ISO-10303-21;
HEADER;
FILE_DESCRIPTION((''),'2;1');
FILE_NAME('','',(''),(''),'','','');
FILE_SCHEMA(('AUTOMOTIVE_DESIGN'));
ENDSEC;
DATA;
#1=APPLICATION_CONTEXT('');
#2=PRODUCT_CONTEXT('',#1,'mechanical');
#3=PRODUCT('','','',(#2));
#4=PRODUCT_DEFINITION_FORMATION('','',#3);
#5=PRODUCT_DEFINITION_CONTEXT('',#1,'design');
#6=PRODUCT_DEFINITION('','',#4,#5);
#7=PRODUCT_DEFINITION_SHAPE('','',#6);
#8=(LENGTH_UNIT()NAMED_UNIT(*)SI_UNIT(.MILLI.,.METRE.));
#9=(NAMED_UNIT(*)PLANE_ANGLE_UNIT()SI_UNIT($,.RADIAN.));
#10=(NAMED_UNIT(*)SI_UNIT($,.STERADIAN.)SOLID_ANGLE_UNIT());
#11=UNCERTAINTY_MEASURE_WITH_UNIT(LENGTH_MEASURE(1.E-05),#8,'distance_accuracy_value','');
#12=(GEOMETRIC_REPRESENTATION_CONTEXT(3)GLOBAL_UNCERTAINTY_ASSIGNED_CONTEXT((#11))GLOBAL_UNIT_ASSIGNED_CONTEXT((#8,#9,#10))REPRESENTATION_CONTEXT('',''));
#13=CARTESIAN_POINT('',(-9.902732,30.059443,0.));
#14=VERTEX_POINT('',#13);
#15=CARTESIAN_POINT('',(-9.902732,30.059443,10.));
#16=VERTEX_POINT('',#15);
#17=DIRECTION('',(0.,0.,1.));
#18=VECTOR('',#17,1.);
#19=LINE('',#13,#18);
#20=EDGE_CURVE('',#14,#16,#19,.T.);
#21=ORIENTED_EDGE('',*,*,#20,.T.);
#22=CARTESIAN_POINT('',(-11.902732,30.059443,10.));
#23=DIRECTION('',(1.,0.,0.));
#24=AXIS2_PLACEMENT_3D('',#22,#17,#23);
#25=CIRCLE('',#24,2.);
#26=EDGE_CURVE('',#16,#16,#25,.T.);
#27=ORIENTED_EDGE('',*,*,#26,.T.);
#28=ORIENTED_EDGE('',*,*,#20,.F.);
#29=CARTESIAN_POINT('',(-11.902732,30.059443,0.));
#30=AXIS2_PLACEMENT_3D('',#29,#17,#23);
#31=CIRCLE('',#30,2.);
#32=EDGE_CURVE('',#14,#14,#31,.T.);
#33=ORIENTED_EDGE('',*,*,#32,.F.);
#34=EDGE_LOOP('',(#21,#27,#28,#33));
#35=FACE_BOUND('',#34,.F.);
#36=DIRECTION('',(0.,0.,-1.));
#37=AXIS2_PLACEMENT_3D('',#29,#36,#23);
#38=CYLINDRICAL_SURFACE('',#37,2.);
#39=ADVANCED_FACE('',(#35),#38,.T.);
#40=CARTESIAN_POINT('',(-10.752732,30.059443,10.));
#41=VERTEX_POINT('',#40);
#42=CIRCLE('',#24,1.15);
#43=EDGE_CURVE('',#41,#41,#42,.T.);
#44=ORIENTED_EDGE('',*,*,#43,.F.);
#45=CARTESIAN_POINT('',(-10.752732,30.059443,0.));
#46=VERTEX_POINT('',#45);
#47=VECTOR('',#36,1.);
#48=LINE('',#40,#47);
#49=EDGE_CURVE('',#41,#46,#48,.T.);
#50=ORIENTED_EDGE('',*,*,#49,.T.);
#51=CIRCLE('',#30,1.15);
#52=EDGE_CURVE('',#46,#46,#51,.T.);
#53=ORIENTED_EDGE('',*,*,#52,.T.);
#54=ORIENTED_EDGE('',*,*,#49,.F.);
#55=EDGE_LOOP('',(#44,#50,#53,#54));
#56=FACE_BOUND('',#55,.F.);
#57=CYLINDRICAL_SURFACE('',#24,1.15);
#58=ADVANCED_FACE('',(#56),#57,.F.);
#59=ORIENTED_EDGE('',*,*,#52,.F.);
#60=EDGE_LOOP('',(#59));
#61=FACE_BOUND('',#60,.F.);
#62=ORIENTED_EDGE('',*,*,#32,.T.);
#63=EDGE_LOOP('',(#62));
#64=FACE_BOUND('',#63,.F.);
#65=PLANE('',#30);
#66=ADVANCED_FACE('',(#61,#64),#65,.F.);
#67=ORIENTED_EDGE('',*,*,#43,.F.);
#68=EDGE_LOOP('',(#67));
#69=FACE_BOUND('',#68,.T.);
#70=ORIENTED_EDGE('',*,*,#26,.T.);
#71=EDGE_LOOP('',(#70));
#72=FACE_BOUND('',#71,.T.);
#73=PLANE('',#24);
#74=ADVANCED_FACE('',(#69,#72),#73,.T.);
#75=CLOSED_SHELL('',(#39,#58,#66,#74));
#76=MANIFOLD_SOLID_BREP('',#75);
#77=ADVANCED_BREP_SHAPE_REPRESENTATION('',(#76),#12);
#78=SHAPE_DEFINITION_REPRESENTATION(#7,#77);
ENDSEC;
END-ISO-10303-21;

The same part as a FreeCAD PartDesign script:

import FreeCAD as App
import Part
import Sketcher
from FreeCAD import Vector

doc = App.newDocument("Part")
params = doc.addObject("Spreadsheet::Sheet", "Params")
for row, (alias, value) in enumerate([
    ("sketch1_diameter", "4 mm"),
    ("pad1_length", "10 mm"),
    ("sketch2_diameter", "2.3 mm"),
], start=1):
    params.set(f"A{row}", alias)
    params.set(f"B{row}", "=" + value)
    params.setAlias(f"B{row}", alias)

body = doc.addObject("PartDesign::Body", "Body")

# Sketch on XY plane
sketch1 = body.newObject("Sketcher::SketchObject", "Sketch")
sketch1.AttachmentSupport = (doc.getObject("XY_Plane"), [""])
sketch1.MapMode = "FlatFace"
sketch1.addGeometry(Part.Circle(Vector(-11.902732, 30.059443, 0), Vector(0, 0, 1), 2), False)
sketch1.addConstraint(Sketcher.Constraint("Diameter", 0, 4.0))
sketch1.addConstraint(Sketcher.Constraint("DistanceX", 0, 3, -1, 1, 11.902732))
sketch1.addConstraint(Sketcher.Constraint("DistanceY", -1, 1, 0, 3, 30.059443))
sketch1.setExpression("Constraints[0]", "Params.sketch1_diameter")
pad1 = body.newObject("PartDesign::Pad", "Pad")
pad1.Profile = sketch1
pad1.setExpression("Length", "Params.pad1_length")

# Sketch on XY plane
sketch2 = body.newObject("Sketcher::SketchObject", "Sketch001")
sketch2.AttachmentSupport = (doc.getObject("XY_Plane"), [""])
sketch2.MapMode = "FlatFace"
sketch2.AttachmentOffset = App.Placement(Vector(0, 0, 10), App.Rotation())
sketch2.addGeometry(Part.Circle(Vector(-11.902732, 30.059443, 0), Vector(0, 0, 1), 1.15), False)
sketch2.addConstraint(Sketcher.Constraint("Diameter", 0, 2.3))
sketch2.addConstraint(Sketcher.Constraint("DistanceX", 0, 3, -1, 1, 11.902732))
sketch2.addConstraint(Sketcher.Constraint("DistanceY", -1, 1, 0, 3, 30.059443))
sketch2.setExpression("Constraints[0]", "Params.sketch2_diameter")
pocket1 = body.newObject("PartDesign::Pocket", "Pocket")
pocket1.Profile = sketch2
pocket1.Type = "ThroughAll"

doc.recompute()
